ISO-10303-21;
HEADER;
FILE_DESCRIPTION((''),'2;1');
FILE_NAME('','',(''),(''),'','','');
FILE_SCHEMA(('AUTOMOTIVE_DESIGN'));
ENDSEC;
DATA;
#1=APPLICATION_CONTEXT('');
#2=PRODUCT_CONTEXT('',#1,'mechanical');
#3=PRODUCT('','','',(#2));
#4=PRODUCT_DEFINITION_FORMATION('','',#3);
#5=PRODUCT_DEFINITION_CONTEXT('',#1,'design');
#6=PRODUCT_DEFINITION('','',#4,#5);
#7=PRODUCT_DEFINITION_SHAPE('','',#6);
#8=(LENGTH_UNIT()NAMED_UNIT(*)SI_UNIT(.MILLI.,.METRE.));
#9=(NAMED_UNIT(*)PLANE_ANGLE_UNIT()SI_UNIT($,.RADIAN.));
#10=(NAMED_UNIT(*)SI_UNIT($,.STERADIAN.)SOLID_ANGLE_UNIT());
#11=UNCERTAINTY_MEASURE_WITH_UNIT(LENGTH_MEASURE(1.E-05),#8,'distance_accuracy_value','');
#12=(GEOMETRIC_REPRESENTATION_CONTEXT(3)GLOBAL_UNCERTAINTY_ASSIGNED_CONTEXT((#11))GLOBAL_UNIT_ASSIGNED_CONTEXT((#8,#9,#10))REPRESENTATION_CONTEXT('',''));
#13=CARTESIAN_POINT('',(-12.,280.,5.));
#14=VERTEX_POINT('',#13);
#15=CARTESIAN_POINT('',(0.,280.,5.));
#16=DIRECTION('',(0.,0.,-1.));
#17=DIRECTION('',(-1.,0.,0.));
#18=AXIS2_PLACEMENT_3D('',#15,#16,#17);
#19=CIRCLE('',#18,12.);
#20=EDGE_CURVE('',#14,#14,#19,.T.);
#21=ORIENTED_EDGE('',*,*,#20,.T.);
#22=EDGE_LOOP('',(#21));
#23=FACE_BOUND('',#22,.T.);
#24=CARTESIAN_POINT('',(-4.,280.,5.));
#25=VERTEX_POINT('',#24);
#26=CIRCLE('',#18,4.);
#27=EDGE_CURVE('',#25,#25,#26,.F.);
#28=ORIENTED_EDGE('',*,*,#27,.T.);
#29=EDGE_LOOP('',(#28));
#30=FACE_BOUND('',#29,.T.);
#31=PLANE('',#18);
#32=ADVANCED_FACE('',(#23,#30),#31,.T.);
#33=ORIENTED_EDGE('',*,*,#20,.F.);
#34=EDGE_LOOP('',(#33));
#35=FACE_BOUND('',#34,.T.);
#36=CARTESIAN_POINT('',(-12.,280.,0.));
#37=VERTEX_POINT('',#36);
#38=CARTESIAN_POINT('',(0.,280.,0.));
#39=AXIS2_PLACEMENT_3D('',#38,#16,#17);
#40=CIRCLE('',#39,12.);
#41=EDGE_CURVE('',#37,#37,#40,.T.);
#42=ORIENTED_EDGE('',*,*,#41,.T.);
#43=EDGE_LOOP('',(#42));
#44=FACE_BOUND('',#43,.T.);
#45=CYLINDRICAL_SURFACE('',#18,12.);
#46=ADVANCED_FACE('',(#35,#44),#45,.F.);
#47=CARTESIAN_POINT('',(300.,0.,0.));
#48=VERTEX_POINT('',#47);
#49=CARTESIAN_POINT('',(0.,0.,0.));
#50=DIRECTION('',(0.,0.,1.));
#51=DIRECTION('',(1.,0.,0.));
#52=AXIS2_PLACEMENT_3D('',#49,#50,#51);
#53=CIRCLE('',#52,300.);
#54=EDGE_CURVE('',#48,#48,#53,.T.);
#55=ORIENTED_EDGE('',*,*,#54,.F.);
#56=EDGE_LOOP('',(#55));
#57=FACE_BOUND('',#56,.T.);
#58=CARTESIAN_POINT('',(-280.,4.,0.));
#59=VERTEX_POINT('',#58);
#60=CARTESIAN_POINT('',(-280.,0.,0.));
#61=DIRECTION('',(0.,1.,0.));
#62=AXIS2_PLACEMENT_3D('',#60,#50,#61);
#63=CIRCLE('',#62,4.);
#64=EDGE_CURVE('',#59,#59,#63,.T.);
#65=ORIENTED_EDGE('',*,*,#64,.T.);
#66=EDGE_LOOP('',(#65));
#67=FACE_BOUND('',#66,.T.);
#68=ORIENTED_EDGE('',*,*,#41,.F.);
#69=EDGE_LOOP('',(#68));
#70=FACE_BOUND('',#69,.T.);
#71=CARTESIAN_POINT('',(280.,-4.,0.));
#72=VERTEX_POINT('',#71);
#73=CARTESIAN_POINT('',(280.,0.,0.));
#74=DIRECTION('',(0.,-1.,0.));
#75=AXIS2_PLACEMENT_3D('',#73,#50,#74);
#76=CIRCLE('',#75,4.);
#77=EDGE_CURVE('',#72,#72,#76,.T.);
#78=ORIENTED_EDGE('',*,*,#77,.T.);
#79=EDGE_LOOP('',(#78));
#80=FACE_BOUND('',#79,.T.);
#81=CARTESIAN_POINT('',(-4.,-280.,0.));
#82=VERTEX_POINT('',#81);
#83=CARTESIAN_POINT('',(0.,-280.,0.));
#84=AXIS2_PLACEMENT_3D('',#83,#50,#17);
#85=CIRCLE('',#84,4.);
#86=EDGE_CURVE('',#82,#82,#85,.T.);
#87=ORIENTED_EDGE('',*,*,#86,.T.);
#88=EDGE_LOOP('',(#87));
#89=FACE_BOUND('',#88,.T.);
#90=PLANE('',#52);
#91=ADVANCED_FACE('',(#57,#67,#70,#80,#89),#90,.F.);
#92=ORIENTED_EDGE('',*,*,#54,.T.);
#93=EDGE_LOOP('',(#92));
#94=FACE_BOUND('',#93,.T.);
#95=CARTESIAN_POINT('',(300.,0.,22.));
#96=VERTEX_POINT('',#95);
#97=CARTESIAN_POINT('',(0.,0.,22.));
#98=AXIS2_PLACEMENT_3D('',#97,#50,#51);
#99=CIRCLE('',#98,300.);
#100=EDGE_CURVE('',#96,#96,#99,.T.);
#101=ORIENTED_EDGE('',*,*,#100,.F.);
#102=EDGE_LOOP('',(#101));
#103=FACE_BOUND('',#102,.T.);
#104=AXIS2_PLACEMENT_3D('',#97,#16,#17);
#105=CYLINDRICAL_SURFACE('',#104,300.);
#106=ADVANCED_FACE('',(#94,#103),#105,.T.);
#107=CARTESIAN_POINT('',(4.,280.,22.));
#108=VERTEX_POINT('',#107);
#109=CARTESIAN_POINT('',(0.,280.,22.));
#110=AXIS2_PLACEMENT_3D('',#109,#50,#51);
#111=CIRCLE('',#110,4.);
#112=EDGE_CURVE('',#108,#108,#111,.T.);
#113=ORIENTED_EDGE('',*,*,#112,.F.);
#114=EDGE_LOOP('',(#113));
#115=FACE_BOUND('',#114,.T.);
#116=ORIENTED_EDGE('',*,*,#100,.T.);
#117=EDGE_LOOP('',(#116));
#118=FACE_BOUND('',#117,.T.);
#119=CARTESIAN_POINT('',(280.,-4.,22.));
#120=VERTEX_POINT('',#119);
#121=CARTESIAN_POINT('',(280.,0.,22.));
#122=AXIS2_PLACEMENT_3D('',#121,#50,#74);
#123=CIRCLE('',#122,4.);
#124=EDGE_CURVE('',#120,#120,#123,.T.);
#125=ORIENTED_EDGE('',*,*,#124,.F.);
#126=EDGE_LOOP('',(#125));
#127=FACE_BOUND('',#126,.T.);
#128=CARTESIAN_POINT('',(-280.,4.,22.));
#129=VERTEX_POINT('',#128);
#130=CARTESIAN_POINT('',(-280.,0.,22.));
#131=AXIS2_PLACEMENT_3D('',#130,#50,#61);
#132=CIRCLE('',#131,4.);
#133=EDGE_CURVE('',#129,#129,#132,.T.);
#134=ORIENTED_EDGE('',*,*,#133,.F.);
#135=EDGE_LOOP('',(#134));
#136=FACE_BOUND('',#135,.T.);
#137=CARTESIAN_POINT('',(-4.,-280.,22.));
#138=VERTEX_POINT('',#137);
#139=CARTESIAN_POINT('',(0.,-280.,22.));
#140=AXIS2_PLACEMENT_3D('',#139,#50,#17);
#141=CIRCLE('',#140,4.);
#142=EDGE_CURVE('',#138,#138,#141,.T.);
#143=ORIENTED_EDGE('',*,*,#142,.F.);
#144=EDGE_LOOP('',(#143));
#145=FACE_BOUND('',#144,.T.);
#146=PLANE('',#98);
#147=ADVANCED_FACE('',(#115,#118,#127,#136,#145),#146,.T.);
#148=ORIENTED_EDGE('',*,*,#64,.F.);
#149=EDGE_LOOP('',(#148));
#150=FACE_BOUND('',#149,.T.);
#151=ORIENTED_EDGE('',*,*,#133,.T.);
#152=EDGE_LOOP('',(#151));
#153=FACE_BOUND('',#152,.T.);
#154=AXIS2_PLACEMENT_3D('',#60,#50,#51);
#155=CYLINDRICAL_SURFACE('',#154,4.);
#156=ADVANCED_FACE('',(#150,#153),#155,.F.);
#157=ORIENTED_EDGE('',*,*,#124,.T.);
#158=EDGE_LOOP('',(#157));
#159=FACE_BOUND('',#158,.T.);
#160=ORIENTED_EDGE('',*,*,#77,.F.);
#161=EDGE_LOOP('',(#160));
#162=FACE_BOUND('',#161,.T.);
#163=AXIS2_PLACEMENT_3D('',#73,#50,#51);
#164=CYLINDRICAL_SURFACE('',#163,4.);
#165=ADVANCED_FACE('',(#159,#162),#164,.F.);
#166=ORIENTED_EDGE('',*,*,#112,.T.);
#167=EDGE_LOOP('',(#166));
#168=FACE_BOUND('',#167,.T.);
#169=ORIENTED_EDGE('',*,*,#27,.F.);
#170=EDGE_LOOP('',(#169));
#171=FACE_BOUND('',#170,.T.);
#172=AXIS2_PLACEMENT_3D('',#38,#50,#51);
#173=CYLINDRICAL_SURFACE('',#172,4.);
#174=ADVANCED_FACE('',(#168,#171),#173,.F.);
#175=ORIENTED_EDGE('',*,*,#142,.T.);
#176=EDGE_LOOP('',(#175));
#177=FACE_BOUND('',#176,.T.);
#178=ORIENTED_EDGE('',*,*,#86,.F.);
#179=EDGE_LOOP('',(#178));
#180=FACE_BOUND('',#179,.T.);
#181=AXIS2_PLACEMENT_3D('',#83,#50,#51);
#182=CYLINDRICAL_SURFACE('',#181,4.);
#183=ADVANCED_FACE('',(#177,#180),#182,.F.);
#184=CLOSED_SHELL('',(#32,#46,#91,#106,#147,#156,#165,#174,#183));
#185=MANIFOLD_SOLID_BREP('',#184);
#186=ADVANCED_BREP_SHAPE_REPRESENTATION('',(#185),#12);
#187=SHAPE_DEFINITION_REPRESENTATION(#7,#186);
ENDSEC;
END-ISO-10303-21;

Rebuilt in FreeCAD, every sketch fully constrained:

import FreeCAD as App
import Part
import Sketcher

V = App.Vector
Q = App.Units.Quantity

doc = App.newDocument("Part")
body = doc.addObject("PartDesign::Body", "Body")

sketch1 = body.newObject("Sketcher::SketchObject", "Sketch")
sketch1.AttachmentSupport = (doc.getObject("XY_Plane"), [""])
sketch1.MapMode = "FlatFace"
sketch1.addGeometry(Part.Circle(V(0, 0, 0), V(0, 0, 1), 300), False)
sketch1.addConstraint(Sketcher.Constraint("Coincident", 0, 3, -1, 1))
sketch1.addConstraint(Sketcher.Constraint("Diameter", 0, Q("600 mm")))
pad1 = body.newObject("PartDesign::Pad", "Pad")
pad1.Profile = sketch1
pad1.Length = 22

sketch2 = body.newObject("Sketcher::SketchObject", "Sketch001")
sketch2.AttachmentSupport = (doc.getObject("XY_Plane"), [""])
sketch2.MapMode = "FlatFace"
sketch2.AttachmentOffset = App.Placement(V(0, 0, 22), App.Rotation())
sketch2.addGeometry(Part.Circle(V(0, 280, 0), V(0, 0, 1), 4), False)
sketch2.addConstraint(Sketcher.Constraint("PointOnObject", 0, 3, -2))
sketch2.addConstraint(Sketcher.Constraint("Diameter", 0, Q("8 mm")))
sketch2.addConstraint(Sketcher.Constraint("DistanceY", -1, 1, 0, 3, Q("280 mm")))
pocket1 = body.newObject("PartDesign::Pocket", "Pocket")
pocket1.Profile = sketch2
pocket1.Type = "ThroughAll"
doc.recompute()

polarpattern = body.newObject("PartDesign::PolarPattern", "PolarPattern")
polarpattern.Originals = [pocket1]
polarpattern.Axis = (doc.getObject("Z_Axis"), [""])
polarpattern.Angle = 360
polarpattern.Occurrences = 4
body.Tip = polarpattern

sketch3 = body.newObject("Sketcher::SketchObject", "Sketch002")
sketch3.AttachmentSupport = (doc.getObject("XY_Plane"), [""])
sketch3.MapMode = "FlatFace"
sketch3.addGeometry(Part.Circle(V(0, 280, 0), V(0, 0, 1), 12), False)
sketch3.addConstraint(Sketcher.Constraint("PointOnObject", 0, 3, -2))
sketch3.addConstraint(Sketcher.Constraint("Diameter", 0, Q("24 mm")))
sketch3.addConstraint(Sketcher.Constraint("DistanceY", -1, 1, 0, 3, Q("280 mm")))
pocket2 = body.newObject("PartDesign::Pocket", "Pocket001")
pocket2.Profile = sketch3
pocket2.Length = 5
pocket2.Reversed = True

doc.recompute()
